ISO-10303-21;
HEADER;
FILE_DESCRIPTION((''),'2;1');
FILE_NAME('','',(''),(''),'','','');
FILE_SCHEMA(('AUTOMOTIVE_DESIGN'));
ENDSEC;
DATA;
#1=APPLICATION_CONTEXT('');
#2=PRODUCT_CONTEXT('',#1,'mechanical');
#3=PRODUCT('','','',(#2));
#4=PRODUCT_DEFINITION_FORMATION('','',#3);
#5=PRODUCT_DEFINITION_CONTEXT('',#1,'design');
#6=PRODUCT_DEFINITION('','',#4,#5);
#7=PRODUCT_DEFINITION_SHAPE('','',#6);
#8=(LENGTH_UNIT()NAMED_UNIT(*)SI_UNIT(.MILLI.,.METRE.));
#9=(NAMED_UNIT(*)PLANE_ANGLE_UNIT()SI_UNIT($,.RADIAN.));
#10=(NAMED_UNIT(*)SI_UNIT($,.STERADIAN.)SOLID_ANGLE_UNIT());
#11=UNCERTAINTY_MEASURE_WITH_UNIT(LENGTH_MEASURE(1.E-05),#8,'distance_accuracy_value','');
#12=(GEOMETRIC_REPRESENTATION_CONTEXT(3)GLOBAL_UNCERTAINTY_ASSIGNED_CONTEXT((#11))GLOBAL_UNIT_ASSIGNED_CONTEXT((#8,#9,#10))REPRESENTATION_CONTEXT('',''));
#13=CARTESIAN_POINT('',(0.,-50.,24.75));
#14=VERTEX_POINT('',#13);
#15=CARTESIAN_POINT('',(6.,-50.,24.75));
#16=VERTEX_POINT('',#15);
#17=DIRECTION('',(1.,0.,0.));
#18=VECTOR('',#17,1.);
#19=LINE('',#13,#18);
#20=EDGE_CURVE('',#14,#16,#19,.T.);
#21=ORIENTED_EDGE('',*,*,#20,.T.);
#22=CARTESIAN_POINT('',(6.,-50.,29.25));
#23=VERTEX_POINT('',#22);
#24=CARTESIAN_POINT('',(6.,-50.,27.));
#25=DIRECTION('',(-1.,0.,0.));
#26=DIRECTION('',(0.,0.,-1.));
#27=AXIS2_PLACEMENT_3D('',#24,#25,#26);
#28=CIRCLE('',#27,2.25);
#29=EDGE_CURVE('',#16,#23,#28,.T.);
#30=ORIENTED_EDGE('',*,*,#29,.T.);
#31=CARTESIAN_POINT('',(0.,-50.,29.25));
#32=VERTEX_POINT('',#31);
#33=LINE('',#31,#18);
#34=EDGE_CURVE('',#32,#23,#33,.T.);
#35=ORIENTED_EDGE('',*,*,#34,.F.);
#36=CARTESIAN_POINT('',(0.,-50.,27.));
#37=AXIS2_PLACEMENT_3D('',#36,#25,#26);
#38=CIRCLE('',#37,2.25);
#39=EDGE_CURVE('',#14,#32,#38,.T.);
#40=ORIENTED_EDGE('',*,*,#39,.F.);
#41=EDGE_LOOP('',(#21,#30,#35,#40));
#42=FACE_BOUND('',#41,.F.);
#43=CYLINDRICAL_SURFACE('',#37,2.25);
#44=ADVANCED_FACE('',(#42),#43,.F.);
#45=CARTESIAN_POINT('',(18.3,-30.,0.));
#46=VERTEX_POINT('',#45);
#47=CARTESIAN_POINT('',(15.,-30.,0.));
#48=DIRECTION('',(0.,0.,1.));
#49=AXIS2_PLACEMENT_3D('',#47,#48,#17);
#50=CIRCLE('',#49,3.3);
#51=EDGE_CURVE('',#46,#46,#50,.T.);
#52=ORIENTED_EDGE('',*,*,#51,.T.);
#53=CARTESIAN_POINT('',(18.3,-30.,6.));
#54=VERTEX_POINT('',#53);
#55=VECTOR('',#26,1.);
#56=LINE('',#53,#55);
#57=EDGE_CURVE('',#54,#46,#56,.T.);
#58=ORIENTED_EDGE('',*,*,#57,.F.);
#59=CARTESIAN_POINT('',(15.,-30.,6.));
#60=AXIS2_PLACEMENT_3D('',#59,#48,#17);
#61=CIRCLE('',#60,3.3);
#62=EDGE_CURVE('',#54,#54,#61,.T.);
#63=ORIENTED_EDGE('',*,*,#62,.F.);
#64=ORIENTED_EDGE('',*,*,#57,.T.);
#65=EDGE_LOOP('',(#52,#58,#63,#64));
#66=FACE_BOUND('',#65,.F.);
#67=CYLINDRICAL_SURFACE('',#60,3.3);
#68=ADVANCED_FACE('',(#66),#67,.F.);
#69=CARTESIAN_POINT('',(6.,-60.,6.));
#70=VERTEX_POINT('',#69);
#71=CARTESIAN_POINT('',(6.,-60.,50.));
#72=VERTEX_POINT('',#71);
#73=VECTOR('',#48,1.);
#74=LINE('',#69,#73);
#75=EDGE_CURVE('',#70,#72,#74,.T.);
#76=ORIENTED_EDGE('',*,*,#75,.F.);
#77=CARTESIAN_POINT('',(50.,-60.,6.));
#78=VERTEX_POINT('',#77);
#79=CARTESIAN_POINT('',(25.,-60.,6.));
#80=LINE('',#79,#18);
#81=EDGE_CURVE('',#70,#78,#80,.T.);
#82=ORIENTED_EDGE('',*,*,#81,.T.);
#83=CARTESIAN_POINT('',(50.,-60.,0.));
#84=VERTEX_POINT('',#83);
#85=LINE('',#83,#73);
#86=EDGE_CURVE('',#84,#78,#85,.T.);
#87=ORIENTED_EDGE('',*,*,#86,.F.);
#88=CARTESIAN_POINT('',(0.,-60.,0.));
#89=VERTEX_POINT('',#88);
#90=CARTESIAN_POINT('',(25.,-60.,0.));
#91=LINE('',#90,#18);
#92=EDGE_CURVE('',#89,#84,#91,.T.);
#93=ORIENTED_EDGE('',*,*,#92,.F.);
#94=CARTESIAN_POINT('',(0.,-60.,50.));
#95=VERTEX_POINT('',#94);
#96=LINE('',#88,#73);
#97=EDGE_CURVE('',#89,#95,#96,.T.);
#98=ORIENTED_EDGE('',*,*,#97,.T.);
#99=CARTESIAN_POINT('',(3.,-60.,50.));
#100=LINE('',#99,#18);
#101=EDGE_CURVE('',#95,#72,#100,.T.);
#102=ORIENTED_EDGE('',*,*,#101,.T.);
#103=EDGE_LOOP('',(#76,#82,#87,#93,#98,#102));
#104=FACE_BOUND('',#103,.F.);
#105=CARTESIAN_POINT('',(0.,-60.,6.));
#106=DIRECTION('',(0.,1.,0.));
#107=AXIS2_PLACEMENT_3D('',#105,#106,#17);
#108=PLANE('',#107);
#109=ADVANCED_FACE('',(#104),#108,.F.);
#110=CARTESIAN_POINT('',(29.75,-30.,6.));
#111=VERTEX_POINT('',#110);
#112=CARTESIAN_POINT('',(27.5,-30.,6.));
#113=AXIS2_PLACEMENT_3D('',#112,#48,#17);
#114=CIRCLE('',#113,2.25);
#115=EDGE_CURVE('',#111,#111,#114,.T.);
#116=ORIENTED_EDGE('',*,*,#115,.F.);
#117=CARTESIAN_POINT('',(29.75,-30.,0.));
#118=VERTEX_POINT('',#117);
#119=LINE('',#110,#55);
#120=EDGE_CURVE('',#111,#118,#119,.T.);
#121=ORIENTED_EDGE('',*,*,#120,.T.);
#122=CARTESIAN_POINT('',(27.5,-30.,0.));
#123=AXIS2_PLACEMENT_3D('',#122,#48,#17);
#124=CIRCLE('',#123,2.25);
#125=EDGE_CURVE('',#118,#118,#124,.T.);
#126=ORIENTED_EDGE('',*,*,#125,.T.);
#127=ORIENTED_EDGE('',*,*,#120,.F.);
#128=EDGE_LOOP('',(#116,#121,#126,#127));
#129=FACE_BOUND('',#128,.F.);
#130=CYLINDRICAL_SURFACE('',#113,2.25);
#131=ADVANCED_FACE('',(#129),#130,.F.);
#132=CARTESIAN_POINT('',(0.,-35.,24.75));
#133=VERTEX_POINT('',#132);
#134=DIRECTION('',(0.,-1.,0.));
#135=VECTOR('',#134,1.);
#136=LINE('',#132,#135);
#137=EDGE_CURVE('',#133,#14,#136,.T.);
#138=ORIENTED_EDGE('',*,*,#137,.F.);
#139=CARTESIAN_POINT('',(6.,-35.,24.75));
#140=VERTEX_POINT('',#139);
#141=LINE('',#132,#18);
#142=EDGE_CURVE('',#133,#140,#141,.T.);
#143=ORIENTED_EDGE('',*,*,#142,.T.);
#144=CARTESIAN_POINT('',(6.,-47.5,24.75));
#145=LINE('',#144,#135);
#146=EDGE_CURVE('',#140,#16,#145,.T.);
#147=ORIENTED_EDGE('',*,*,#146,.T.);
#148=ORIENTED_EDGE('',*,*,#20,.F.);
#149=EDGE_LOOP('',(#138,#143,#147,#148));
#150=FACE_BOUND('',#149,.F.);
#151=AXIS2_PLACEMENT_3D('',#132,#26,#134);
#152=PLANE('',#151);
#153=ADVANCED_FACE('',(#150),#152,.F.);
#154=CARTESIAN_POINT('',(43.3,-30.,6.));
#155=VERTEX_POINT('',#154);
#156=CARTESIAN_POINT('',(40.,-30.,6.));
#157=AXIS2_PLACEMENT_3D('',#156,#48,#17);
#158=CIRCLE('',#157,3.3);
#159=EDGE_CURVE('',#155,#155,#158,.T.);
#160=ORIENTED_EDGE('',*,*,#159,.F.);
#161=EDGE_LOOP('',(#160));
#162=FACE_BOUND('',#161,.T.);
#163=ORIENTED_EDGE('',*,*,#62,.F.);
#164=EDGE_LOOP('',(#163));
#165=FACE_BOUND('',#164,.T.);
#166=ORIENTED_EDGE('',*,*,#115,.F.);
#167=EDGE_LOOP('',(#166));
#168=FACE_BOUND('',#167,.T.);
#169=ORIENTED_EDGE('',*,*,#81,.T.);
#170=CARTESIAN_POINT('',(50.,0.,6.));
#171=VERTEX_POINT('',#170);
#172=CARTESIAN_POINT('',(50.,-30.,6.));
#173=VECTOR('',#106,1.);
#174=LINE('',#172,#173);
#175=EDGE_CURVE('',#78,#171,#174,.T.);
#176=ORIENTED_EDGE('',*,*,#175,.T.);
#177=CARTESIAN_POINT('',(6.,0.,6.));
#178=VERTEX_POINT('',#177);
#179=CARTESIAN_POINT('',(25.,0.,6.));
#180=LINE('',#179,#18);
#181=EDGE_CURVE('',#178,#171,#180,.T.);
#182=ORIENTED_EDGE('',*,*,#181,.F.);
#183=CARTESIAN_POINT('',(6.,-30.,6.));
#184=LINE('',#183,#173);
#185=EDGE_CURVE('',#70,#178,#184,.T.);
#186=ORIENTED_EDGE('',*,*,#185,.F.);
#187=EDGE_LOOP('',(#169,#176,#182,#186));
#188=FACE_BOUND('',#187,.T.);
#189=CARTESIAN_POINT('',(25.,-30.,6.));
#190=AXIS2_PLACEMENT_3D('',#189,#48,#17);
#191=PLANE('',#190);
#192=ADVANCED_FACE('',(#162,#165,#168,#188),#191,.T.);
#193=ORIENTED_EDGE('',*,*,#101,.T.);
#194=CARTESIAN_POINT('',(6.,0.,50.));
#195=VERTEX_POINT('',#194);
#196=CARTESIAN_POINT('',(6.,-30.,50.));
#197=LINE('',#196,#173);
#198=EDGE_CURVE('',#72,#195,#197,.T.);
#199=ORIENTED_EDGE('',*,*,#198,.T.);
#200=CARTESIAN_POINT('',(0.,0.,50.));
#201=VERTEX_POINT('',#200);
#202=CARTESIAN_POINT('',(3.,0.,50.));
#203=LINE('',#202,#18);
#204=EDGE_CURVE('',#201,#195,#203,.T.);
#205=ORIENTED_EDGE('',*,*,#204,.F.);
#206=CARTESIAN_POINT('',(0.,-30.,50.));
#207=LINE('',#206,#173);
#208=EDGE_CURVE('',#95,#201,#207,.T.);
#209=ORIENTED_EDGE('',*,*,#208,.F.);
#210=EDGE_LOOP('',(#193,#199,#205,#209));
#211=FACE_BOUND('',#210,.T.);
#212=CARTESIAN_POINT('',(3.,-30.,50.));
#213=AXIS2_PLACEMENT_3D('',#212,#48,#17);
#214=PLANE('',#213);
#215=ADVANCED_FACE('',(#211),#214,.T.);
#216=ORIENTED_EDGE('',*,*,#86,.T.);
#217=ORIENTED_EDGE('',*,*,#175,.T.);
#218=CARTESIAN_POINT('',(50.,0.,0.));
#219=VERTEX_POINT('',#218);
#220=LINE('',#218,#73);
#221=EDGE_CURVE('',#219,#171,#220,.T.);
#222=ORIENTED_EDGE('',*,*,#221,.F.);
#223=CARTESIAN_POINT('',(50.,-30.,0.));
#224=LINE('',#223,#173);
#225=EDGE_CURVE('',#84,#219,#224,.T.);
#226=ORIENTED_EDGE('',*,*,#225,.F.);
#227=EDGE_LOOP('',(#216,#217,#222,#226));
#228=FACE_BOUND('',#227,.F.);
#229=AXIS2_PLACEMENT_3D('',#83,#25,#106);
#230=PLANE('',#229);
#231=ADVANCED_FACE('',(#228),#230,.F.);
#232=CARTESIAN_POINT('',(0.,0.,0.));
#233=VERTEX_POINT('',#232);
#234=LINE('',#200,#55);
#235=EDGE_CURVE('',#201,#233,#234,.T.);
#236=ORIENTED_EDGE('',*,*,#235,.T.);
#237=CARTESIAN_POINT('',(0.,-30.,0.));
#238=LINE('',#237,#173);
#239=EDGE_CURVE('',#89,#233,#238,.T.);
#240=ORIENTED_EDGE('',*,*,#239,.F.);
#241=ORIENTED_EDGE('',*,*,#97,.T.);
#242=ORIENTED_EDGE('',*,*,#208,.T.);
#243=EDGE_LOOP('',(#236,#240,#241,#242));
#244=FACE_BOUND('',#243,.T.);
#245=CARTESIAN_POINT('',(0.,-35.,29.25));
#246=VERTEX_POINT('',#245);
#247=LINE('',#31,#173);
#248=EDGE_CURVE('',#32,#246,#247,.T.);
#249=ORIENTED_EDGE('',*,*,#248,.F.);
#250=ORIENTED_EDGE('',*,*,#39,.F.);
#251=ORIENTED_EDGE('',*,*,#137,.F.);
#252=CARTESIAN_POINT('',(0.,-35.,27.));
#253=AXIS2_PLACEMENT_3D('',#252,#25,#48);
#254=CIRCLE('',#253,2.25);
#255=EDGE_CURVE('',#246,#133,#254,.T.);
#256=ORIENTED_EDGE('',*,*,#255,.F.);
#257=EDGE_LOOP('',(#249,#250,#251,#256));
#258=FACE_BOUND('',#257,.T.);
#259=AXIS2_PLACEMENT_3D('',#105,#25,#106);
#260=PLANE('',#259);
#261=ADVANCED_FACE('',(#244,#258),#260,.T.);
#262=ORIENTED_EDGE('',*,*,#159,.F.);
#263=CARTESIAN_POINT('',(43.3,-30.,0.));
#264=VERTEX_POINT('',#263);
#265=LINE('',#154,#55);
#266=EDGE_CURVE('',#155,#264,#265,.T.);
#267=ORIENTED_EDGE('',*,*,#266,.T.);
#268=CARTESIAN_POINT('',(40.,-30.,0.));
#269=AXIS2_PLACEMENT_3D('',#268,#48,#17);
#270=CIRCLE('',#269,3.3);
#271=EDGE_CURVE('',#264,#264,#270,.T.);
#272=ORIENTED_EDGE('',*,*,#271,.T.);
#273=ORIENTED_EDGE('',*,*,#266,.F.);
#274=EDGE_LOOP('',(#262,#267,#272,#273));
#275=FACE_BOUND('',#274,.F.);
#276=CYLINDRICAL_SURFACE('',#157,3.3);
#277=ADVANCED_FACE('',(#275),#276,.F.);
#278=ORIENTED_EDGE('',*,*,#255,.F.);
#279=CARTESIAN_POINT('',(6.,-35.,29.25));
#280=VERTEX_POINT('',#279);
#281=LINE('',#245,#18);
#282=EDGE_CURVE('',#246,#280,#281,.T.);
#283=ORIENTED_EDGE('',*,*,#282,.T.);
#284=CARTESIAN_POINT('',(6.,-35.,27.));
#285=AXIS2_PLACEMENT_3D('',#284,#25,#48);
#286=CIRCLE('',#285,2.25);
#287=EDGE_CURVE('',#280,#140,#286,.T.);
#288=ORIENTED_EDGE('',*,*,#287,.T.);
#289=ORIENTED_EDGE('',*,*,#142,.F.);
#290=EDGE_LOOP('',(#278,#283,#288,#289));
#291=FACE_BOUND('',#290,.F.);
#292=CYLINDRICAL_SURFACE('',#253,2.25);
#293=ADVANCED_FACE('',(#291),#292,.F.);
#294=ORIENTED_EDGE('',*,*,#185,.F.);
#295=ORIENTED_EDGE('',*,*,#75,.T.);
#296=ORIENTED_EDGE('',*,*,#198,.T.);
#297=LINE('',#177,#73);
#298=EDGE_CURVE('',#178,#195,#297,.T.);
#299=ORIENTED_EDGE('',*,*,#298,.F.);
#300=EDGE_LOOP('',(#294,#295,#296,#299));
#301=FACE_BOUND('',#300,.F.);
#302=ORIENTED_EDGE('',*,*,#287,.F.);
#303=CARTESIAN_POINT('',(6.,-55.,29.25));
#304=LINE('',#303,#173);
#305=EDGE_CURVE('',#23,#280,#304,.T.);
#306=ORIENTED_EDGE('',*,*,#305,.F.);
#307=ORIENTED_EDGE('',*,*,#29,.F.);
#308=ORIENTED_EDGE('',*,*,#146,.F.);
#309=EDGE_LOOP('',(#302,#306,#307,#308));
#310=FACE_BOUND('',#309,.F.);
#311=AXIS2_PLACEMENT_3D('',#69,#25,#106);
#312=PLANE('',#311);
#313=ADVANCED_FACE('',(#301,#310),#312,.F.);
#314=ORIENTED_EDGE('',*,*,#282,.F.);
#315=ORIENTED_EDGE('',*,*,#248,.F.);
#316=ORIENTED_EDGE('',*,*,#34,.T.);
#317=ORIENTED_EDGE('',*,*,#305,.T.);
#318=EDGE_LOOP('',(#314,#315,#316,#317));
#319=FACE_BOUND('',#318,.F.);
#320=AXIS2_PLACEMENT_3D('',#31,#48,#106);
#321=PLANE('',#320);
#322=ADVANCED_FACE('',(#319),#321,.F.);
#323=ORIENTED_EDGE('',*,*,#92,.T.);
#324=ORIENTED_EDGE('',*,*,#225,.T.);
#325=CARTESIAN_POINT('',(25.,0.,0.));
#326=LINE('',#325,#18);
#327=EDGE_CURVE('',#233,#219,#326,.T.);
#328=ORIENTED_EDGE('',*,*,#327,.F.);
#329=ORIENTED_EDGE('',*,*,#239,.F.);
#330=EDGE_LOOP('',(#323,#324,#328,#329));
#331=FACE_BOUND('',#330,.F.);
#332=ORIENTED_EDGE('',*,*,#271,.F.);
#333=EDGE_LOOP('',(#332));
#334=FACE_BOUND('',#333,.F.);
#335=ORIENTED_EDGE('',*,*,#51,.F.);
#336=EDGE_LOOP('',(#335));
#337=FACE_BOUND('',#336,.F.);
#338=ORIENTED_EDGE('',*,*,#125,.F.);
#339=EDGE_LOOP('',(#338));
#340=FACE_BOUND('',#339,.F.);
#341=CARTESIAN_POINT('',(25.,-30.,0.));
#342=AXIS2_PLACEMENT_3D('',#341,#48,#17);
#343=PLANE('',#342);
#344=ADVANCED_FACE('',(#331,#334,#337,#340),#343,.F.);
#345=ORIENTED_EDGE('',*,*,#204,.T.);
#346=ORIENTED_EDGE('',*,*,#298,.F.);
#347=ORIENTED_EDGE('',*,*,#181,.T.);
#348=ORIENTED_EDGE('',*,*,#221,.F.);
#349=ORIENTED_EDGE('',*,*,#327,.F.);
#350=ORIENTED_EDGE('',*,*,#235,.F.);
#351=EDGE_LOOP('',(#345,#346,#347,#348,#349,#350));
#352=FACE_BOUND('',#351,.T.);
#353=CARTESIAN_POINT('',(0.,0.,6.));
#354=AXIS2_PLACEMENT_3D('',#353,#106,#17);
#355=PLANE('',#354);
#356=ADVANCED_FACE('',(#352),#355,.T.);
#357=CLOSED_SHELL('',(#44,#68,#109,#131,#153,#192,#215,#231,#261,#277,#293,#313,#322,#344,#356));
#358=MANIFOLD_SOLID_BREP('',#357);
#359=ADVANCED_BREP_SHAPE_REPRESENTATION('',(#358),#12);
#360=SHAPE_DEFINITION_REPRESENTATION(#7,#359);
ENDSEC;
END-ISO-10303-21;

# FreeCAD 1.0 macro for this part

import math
import FreeCAD as App
import Part
import Sketcher
from FreeCAD import Vector
Q = App.Units.Quantity


def add_polygon(sketch, points):
    """Adds a closed chain of lines whose ends are joined by coincident constraints."""
    first, n = sketch.GeometryCount, len(points)
    for a, b in zip(points, points[1:] + points[:1]):
        sketch.addGeometry(Part.LineSegment(App.Vector(*a, 0), App.Vector(*b, 0)), False)
    for i in range(n):
        sketch.addConstraint(Sketcher.Constraint("Coincident", first + i, 2, first + (i + 1) % n, 1))

doc = App.newDocument("Part")
body = doc.addObject("PartDesign::Body", "Body")

sketch1 = doc.addObject("Sketcher::SketchObject", "Sketch")
body.addObject(sketch1)
sketch1.AttachmentSupport = (doc.XY_Plane, [""])
sketch1.MapMode = "FlatFace"
add_polygon(sketch1, [(0, 0), (0, -60), (50, -60), (50, 0)])
sketch1.addConstraint([
    Sketcher.Constraint("Vertical", 0),
    Sketcher.Constraint("Horizontal", 1),
    Sketcher.Constraint("Vertical", 2),
    Sketcher.Constraint("Horizontal", 3),
    Sketcher.Constraint("Coincident", 3, 2, -1, 1),
    Sketcher.Constraint("DistanceX", 1, 1, 1, 2, Q("50 mm")),
    Sketcher.Constraint("DistanceY", 0, 2, 0, 1, Q("60 mm")),
])
pad1 = doc.addObject("PartDesign::Pad", "Pad")
body.addObject(pad1)
pad1.Profile = sketch1
pad1.Length = 6

sketch2 = doc.addObject("Sketcher::SketchObject", "Sketch001")
body.addObject(sketch2)
sketch2.AttachmentSupport = (doc.XY_Plane, [""])
sketch2.MapMode = "FlatFace"
sketch2.AttachmentOffset = App.Placement(Vector(0, 0, 6), App.Rotation())
add_polygon(sketch2, [(0, 0), (0, -60), (6, -60), (6, 0)])
sketch2.addConstraint([
    Sketcher.Constraint("Vertical", 0),
    Sketcher.Constraint("Horizontal", 1),
    Sketcher.Constraint("Vertical", 2),
    Sketcher.Constraint("Horizontal", 3),
    Sketcher.Constraint("Coincident", 3, 2, -1, 1),
    Sketcher.Constraint("DistanceX", 1, 1, 1, 2, Q("6 mm")),
    Sketcher.Constraint("DistanceY", 0, 2, 0, 1, Q("60 mm")),
])
pad2 = doc.addObject("PartDesign::Pad", "Pad001")
body.addObject(pad2)
pad2.Profile = sketch2
pad2.Length = 44

sketch3 = doc.addObject("Sketcher::SketchObject", "Sketch002")
body.addObject(sketch3)
sketch3.AttachmentSupport = (doc.YZ_Plane, [""])
sketch3.MapMode = "FlatFace"
sketch3.addGeometry([
    Part.LineSegment(Vector(-50, 29.25, 0), Vector(-35, 29.25, 0)),
    Part.ArcOfCircle(Part.Circle(Vector(-35, 27, 0), Vector(0, 0, 1), 2.25), math.radians(-90), math.radians(90)),
    Part.LineSegment(Vector(-35, 24.75, 0), Vector(-50, 24.75, 0)),
    Part.ArcOfCircle(Part.Circle(Vector(-50, 27, 0), Vector(0, 0, 1), 2.25), math.radians(90), math.radians(270)),
], False)
sketch3.addConstraint([
    Sketcher.Constraint("Tangent", 0, 2, 1, 2),
    Sketcher.Constraint("Tangent", 1, 1, 2, 1),
    Sketcher.Constraint("Tangent", 2, 2, 3, 2),
    Sketcher.Constraint("Tangent", 3, 1, 0, 1),
    Sketcher.Constraint("Horizontal", 0),
    Sketcher.Constraint("Horizontal", 2),
    Sketcher.Constraint("DistanceX", 0, 1, 0, 2, Q("15 mm")),
    Sketcher.Constraint("Radius", 1, Q("2.25 mm")),
    Sketcher.Constraint("DistanceX", 1, 3, -1, 1, Q("35 mm")),
    Sketcher.Constraint("DistanceY", -1, 1, 1, 3, Q("27 mm")),
])
pocket1 = doc.addObject("PartDesign::Pocket", "Pocket")
body.addObject(pocket1)
pocket1.Profile = sketch3
pocket1.Type = "ThroughAll"
pocket1.Reversed = True

sketch4 = doc.addObject("Sketcher::SketchObject", "Sketch003")
body.addObject(sketch4)
sketch4.AttachmentSupport = (doc.XY_Plane, [""])
sketch4.MapMode = "FlatFace"
sketch4.AttachmentOffset = App.Placement(Vector(0, 0, 6), App.Rotation())
sketch4.addGeometry([
    Part.Circle(Vector(27.5, -30, 0), Vector(0, 0, 1), 2.25),
    Part.Circle(Vector(15, -30, 0), Vector(0, 0, 1), 3.3),
    Part.Circle(Vector(40, -30, 0), Vector(0, 0, 1), 3.3),
], False)
sketch4.addConstraint([
    Sketcher.Constraint("Equal", 1, 2),
    Sketcher.Constraint("Horizontal", 0, 3, 1, 3),
    Sketcher.Constraint("Horizontal", 1, 3, 2, 3),
    Sketcher.Constraint("Diameter", 0, Q("4.5 mm")),
    Sketcher.Constraint("Diameter", 1, Q("6.6 mm")),
    Sketcher.Constraint("DistanceY", 0, 3, -1, 1, Q("30 mm")),
    Sketcher.Constraint("DistanceX", -1, 1, 1, 3, Q("15 mm")),
    Sketcher.Constraint("DistanceX", -1, 1, 2, 3, Q("40 mm")),
    Sketcher.Constraint("DistanceX", -1, 1, 0, 3, Q("27.5 mm")),
])
pocket2 = doc.addObject("PartDesign::Pocket", "Pocket001")
body.addObject(pocket2)
pocket2.Profile = sketch4
pocket2.Length = 25

doc.recompute()
